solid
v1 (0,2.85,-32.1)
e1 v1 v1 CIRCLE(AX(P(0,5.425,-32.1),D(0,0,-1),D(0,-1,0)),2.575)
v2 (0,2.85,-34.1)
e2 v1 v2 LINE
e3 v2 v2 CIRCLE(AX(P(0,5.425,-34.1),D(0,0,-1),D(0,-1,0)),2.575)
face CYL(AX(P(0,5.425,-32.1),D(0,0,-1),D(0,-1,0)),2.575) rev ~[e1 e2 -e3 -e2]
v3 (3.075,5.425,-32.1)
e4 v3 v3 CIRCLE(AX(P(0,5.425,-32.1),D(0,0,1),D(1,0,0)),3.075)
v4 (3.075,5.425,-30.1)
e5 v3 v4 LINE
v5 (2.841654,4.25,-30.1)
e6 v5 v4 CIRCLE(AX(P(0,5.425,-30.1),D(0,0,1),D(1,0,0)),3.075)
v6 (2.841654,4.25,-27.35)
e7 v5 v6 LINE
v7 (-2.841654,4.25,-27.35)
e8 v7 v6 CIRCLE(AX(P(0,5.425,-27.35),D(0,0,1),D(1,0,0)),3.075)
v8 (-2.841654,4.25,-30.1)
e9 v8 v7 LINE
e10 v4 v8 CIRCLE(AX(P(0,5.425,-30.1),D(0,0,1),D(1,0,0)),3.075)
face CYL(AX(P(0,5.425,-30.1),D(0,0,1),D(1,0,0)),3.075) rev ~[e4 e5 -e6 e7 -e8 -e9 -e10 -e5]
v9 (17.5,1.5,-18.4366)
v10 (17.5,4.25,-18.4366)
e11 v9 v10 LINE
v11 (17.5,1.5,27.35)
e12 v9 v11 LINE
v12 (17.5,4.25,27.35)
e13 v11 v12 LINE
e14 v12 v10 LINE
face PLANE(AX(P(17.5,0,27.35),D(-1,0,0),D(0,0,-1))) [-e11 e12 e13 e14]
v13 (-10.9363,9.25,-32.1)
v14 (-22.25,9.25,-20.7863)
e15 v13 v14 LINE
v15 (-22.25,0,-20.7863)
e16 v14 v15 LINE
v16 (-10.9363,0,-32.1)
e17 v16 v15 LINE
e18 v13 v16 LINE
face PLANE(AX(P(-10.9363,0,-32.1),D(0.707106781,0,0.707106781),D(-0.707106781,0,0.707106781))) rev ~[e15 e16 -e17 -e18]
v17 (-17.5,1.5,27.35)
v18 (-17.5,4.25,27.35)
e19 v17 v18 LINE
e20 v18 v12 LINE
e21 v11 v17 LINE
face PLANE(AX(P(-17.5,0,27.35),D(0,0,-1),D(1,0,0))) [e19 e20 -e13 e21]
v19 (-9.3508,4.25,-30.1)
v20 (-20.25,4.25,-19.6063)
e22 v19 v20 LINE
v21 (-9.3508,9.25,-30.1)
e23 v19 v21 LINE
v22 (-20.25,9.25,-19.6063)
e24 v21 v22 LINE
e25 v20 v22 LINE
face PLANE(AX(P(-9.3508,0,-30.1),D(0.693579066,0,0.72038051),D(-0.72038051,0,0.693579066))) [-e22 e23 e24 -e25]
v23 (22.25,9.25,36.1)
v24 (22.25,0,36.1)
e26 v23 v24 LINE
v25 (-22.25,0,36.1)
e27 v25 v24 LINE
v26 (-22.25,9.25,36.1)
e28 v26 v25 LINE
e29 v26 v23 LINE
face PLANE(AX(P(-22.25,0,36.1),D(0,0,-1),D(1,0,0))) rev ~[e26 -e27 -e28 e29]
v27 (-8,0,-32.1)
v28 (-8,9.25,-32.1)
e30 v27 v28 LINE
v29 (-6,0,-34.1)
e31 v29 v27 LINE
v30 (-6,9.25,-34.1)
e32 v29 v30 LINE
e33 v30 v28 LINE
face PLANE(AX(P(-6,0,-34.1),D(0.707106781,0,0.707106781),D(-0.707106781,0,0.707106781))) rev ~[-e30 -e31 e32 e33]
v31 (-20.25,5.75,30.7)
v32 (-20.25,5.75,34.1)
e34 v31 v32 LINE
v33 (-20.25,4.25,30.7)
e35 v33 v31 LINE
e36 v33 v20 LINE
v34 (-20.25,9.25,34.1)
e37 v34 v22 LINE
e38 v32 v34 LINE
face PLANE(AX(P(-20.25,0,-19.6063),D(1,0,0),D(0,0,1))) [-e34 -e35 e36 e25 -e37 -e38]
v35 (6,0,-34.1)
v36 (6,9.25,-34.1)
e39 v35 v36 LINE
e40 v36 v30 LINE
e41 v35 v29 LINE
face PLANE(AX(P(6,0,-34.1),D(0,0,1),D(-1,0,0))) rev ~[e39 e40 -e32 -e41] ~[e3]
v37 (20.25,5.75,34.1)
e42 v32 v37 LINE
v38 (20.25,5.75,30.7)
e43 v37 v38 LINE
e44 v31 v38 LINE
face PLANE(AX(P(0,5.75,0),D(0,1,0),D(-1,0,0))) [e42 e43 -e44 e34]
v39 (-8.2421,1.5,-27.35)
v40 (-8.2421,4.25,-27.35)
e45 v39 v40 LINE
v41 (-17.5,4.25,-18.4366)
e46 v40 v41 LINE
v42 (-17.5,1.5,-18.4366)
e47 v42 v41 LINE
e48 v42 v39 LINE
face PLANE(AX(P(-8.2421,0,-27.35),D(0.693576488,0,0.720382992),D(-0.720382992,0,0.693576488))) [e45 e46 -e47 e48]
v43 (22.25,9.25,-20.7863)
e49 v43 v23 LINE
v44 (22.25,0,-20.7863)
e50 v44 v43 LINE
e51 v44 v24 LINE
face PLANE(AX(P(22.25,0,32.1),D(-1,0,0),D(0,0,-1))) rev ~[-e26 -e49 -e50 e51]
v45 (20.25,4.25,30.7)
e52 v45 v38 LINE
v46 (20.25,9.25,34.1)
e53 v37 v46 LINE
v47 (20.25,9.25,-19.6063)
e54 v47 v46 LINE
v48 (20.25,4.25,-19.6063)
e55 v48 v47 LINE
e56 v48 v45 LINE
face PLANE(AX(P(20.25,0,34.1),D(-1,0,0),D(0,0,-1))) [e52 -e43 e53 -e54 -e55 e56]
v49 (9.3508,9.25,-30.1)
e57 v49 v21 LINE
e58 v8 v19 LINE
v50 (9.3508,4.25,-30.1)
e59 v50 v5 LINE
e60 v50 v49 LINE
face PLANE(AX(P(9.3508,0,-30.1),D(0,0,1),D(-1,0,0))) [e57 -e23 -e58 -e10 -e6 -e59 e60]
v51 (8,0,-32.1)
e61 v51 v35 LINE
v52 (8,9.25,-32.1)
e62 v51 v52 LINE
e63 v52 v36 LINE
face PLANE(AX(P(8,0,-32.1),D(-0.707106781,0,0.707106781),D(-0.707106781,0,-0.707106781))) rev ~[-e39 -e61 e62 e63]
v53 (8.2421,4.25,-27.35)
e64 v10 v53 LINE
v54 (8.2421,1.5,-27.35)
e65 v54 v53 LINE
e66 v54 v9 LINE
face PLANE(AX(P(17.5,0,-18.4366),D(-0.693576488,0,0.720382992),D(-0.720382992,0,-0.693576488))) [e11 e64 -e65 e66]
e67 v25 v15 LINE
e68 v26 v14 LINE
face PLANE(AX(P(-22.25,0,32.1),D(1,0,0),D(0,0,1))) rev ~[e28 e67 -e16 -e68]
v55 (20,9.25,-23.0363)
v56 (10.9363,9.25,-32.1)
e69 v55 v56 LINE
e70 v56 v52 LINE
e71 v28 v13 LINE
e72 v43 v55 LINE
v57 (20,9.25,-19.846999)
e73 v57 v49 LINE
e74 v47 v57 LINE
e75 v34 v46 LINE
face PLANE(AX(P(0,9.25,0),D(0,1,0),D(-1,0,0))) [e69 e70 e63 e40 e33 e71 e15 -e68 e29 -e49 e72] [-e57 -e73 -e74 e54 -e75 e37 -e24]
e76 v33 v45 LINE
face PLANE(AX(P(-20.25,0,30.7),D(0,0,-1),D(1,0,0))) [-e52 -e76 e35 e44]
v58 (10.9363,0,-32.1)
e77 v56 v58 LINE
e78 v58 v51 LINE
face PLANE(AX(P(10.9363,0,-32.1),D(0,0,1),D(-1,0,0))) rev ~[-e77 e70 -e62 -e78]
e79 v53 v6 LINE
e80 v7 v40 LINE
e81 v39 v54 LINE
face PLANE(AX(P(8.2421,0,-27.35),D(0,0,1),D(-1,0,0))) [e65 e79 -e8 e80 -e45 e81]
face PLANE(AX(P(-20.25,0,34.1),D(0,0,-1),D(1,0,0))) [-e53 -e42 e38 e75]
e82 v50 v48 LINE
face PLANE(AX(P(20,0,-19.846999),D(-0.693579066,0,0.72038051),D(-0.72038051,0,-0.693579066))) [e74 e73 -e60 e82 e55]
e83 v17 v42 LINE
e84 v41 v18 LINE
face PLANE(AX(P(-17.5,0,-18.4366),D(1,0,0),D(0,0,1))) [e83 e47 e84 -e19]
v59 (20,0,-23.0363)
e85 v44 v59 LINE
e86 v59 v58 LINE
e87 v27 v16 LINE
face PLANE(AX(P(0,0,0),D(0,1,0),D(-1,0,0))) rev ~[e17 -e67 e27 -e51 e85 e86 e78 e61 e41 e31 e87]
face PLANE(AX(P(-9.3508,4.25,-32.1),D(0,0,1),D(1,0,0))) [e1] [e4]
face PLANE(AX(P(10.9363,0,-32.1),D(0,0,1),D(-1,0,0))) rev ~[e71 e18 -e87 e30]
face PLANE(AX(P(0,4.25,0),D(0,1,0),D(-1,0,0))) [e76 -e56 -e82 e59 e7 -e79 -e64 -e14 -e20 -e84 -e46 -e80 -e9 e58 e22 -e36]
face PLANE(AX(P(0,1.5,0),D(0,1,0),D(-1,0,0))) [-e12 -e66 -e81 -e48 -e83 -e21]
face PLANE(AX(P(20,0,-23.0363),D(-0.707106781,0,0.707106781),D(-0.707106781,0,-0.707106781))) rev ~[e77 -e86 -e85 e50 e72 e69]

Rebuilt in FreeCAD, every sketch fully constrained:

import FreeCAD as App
import Part
import Sketcher

V = App.Vector
Q = App.Units.Quantity


def add_polygon(sketch, points):
    """Adds a closed chain of lines whose ends are joined by coincident constraints."""
    first, n = sketch.GeometryCount, len(points)
    for a, b in zip(points, points[1:] + points[:1]):
        sketch.addGeometry(Part.LineSegment(App.Vector(*a, 0), App.Vector(*b, 0)), False)
    for i in range(n):
        sketch.addConstraint(Sketcher.Constraint("Coincident", first + i, 2, first + (i + 1) % n, 1))

doc = App.newDocument("Part")
body = doc.addObject("PartDesign::Body", "Body")

# Sketch on XZ plane
sketch1 = doc.addObject("Sketcher::SketchObject", "Sketch")
body.addObject(sketch1)
sketch1.AttachmentSupport = (doc.XZ_Plane, [""])
sketch1.MapMode = "FlatFace"
add_polygon(sketch1, [(22.25, -20.7863), (20, -23.0363), (10.9363, -32.1), (-10.9363, -32.1), (-22.25, -20.7863), (-22.25, 36.1), (22.25, 36.1)])  # lines 0-6
sketch1.addConstraint(Sketcher.Constraint("Horizontal", 2))
sketch1.addConstraint(Sketcher.Constraint("Vertical", 4))
sketch1.addConstraint(Sketcher.Constraint("Horizontal", 5))
sketch1.addConstraint(Sketcher.Constraint("Vertical", 6))
sketch1.addConstraint(Sketcher.Constraint("Symmetric", 3, 2, 6, 2, -2))
sketch1.addConstraint(Sketcher.Constraint("Parallel", 0, 1))
sketch1.addConstraint(Sketcher.Constraint("Perpendicular", 1, 3))
sketch1.addConstraint(Sketcher.Constraint("Angle", 0, Q("-135 deg")))
sketch1.addConstraint(Sketcher.Constraint("Distance", 3, 16.0))
sketch1.addConstraint(Sketcher.Constraint("DistanceX", 5, 1, 5, 2, 44.5))
sketch1.addConstraint(Sketcher.Constraint("DistanceX", -1, 1, 0, 2, 20.0))
sketch1.addConstraint(Sketcher.Constraint("DistanceY", 1, 2, -1, 1, 32.1))
sketch1.addConstraint(Sketcher.Constraint("DistanceY", -1, 1, 4, 2, 36.1))
pad1 = doc.addObject("PartDesign::Pad", "Pad")
body.addObject(pad1)
pad1.Profile = sketch1
pad1.Length = 1.5
pad1.Reversed = True

# Sketch on XZ plane
sketch2 = doc.addObject("Sketcher::SketchObject", "Sketch001")
body.addObject(sketch2)
sketch2.AttachmentSupport = (doc.XZ_Plane, [""])
sketch2.MapMode = "FlatFace"
add_polygon(sketch2, [(20.25, -19.6063), (9.3508, -30.1), (-9.3508, -30.1), (-20.25, -19.6063), (-20.25, 30.7), (20.25, 30.7)])  # lines 0-5
add_polygon(sketch2, [(-17.5, 27.35), (-17.5, -18.4366), (-8.2421, -27.35), (8.2421, -27.35), (17.5, -18.4366), (17.5, 27.35)])  # lines 6-11
sketch2.addConstraint(Sketcher.Constraint("Horizontal", 1))
sketch2.addConstraint(Sketcher.Constraint("Vertical", 3))
sketch2.addConstraint(Sketcher.Constraint("Horizontal", 4))
sketch2.addConstraint(Sketcher.Constraint("Vertical", 5))
sketch2.addConstraint(Sketcher.Constraint("Vertical", 6))
sketch2.addConstraint(Sketcher.Constraint("Horizontal", 8))
sketch2.addConstraint(Sketcher.Constraint("Vertical", 10))
sketch2.addConstraint(Sketcher.Constraint("Horizontal", 11))
sketch2.addConstraint(Sketcher.Constraint("Symmetric", 2, 2, 5, 2, -2))
sketch2.addConstraint(Sketcher.Constraint("Symmetric", 6, 2, 9, 2, -2))
sketch2.addConstraint(Sketcher.Constraint("Parallel", 2, 7))
sketch2.addConstraint(Sketcher.Constraint("Parallel", 0, 9))
sketch2.addConstraint(Sketcher.Constraint("Equal", 0, 2))
sketch2.addConstraint(Sketcher.Constraint("DistanceX", 11, 2, 11, 1, 35.0))
sketch2.addConstraint(Sketcher.Constraint("DistanceX", 4, 1, 4, 2, 40.5))
sketch2.addConstraint(Sketcher.Constraint("DistanceY", 0, 2, -1, 1, 30.1))
sketch2.addConstraint(Sketcher.Constraint("DistanceY", -1, 1, 3, 2, 30.7))
sketch2.addConstraint(Sketcher.Constraint("DistanceY", 8, 2, 10, 2, 54.7))
sketch2.addConstraint(Sketcher.Constraint("DistanceY", 7, 2, -1, 1, 27.35))
sketch2.addConstraint(Sketcher.Constraint("DistanceX", 1, 2, 1, 1, 18.7016))
sketch2.addConstraint(Sketcher.Constraint("DistanceX", 8, 1, 8, 2, 16.4842))
sketch2.addConstraint(Sketcher.Constraint("DistanceY", 3, 1, 3, 2, 50.3063))
pad2 = doc.addObject("PartDesign::Pad", "Pad001")
body.addObject(pad2)
pad2.Profile = sketch2
pad2.Length = 4.25
pad2.Reversed = True

# Sketch on XZ plane
sketch3 = doc.addObject("Sketcher::SketchObject", "Sketch002")
body.addObject(sketch3)
sketch3.AttachmentSupport = (doc.XZ_Plane, [""])
sketch3.MapMode = "FlatFace"
add_polygon(sketch3, [(20.25, 34.1), (20.25, 30.7), (-20.25, 30.7), (-20.25, 34.1)])  # lines 0-3
sketch3.addConstraint(Sketcher.Constraint("Vertical", 0))
sketch3.addConstraint(Sketcher.Constraint("Horizontal", 1))
sketch3.addConstraint(Sketcher.Constraint("Vertical", 2))
sketch3.addConstraint(Sketcher.Constraint("Horizontal", 3))
sketch3.addConstraint(Sketcher.Constraint("DistanceX", 1, 2, 1, 1, 40.5))
sketch3.addConstraint(Sketcher.Constraint("DistanceY", 0, 2, 0, 1, 3.4))
sketch3.addConstraint(Sketcher.Constraint("DistanceY", -1, 1, 0, 2, 30.7))
sketch3.addConstraint(Sketcher.Constraint("DistanceX", -1, 1, 0, 2, 20.25))
pad3 = doc.addObject("PartDesign::Pad", "Pad002")
body.addObject(pad3)
pad3.Profile = sketch3
pad3.Length = 5.75
pad3.Reversed = True

# Sketch on XZ plane
sketch4 = doc.addObject("Sketcher::SketchObject", "Sketch003")
body.addObject(sketch4)
sketch4.AttachmentSupport = (doc.XZ_Plane, [""])
sketch4.MapMode = "FlatFace"
add_polygon(sketch4, [(22.25, -20.7863), (20, -23.0363), (10.9363, -32.1), (-10.9363, -32.1), (-22.25, -20.7863), (-22.25, 36.1), (22.25, 36.1)])  # lines 0-6
add_polygon(sketch4, [(9.3508, -30.1), (20, -19.846999), (20.25, -19.6063), (20.25, 34.1), (-20.25, 34.1), (-20.25, -19.6063), (-9.3508, -30.1)])  # lines 7-13
sketch4.addConstraint(Sketcher.Constraint("Horizontal", 2))
sketch4.addConstraint(Sketcher.Constraint("Vertical", 4))
sketch4.addConstraint(Sketcher.Constraint("Horizontal", 5))
sketch4.addConstraint(Sketcher.Constraint("Vertical", 6))
sketch4.addConstraint(Sketcher.Constraint("Vertical", 9))
sketch4.addConstraint(Sketcher.Constraint("Horizontal", 10))
sketch4.addConstraint(Sketcher.Constraint("Vertical", 11))
sketch4.addConstraint(Sketcher.Constraint("Horizontal", 13))
sketch4.addConstraint(Sketcher.Constraint("Distance", 3, 16.0))
sketch4.addConstraint(Sketcher.Constraint("DistanceX", 8, 2, 6, 2, 2.0))
sketch4.addConstraint(Sketcher.Constraint("DistanceY", 9, 2, 5, 2, 2.0))
sketch4.addConstraint(Sketcher.Constraint("DistanceX", 4, 2, 10, 2, 2.0))
sketch4.addConstraint(Sketcher.Constraint("DistanceY", 2, 2, 12, 2, 2.0))
sketch4.addConstraint(Sketcher.Constraint("DistanceX", 7, 2, 8, 2, 0.25))
sketch4.addConstraint(Sketcher.Constraint("DistanceX", 0, 2, 8, 2, 0.25))
sketch4.addConstraint(Sketcher.Constraint("DistanceX", 5, 1, 5, 2, 44.5))
sketch4.addConstraint(Sketcher.Constraint("DistanceX", -1, 1, 0, 2, 20.0))
sketch4.addConstraint(Sketcher.Constraint("DistanceY", 1, 2, -1, 1, 32.1))
sketch4.addConstraint(Sketcher.Constraint("DistanceY", -1, 1, 4, 2, 36.1))
sketch4.addConstraint(Sketcher.Constraint("DistanceY", 0, 2, 3, 2, 2.25))
sketch4.addConstraint(Sketcher.Constraint("DistanceY", 0, 2, 6, 2, 2.25))
sketch4.addConstraint(Sketcher.Constraint("DistanceY", 6, 2, 8, 2, 1.18))
sketch4.addConstraint(Sketcher.Constraint("DistanceY", 3, 2, 11, 2, 1.18))
sketch4.addConstraint(Sketcher.Constraint("Distance", 1, 12.818))
sketch4.addConstraint(Sketcher.Constraint("Distance", 8, 0.347))
sketch4.addConstraint(Sketcher.Constraint("DistanceX", 2, 2, 2, 1, 21.8726))
sketch4.addConstraint(Sketcher.Constraint("DistanceX", 13, 1, 13, 2, 18.7016))
sketch4.addConstraint(Sketcher.Constraint("DistanceX", 12, 2, 1, 2, 20.287))
pad4 = doc.addObject("PartDesign::Pad", "Pad003")
body.addObject(pad4)
pad4.Profile = sketch4
pad4.Length = 9.25
pad4.Reversed = True

# Sketch on XZ plane
sketch5 = doc.addObject("Sketcher::SketchObject", "Sketch004")
body.addObject(sketch5)
sketch5.AttachmentSupport = (doc.XZ_Plane, [""])
sketch5.MapMode = "FlatFace"
add_polygon(sketch5, [(6, -34.1), (8, -32.1), (-8, -32.1), (-6, -34.1)])  # lines 0-3
sketch5.addConstraint(Sketcher.Constraint("Horizontal", 1))
sketch5.addConstraint(Sketcher.Constraint("Horizontal", 3))
sketch5.addConstraint(Sketcher.Constraint("Perpendicular", 0, 2))
sketch5.addConstraint(Sketcher.Constraint("Equal", 0, 2))
sketch5.addConstraint(Sketcher.Constraint("DistanceX", 3, 1, 3, 2, 12.0))
sketch5.addConstraint(Sketcher.Constraint("DistanceX", 1, 2, 2, 2, 2.0))
sketch5.addConstraint(Sketcher.Constraint("DistanceX", -1, 1, 0, 2, 8.0))
sketch5.addConstraint(Sketcher.Constraint("DistanceY", 0, 2, -1, 1, 32.1))
pad5 = doc.addObject("PartDesign::Pad", "Pad004")
body.addObject(pad5)
pad5.Profile = sketch5
pad5.Length = 9.25
pad5.Reversed = True

# Sketch on XY plane
sketch6 = doc.addObject("Sketcher::SketchObject", "Sketch005")
body.addObject(sketch6)
sketch6.AttachmentSupport = (doc.XY_Plane, [""])
sketch6.MapMode = "FlatFace"
sketch6.AttachmentOffset = App.Placement(V(0, 0, -30.1), App.Rotation())
sketch6.addGeometry(Part.Circle(V(0, 5.425, 0), V(0, 0, 1), 3.075), False)
sketch6.addConstraint(Sketcher.Constraint("PointOnObject", 0, 3, -2))
sketch6.addConstraint(Sketcher.Constraint("Diameter", 0, 6.15))
sketch6.addConstraint(Sketcher.Constraint("DistanceY", -1, 1, 0, 3, 5.425))
pocket1 = doc.addObject("PartDesign::Pocket", "Pocket")
body.addObject(pocket1)
pocket1.Profile = sketch6
pocket1.Type = "TwoLengths"
pocket1.Length = 7
pocket1.Length2 = 2
pocket1.Reversed = True

# Sketch on XY plane
sketch7 = doc.addObject("Sketcher::SketchObject", "Sketch006")
body.addObject(sketch7)
sketch7.AttachmentSupport = (doc.XY_Plane, [""])
sketch7.MapMode = "FlatFace"
sketch7.AttachmentOffset = App.Placement(V(0, 0, -32.1), App.Rotation())
sketch7.addGeometry(Part.Circle(V(0, 5.425, 0), V(0, 0, 1), 2.575), False)
sketch7.addConstraint(Sketcher.Constraint("PointOnObject", 0, 3, -2))
sketch7.addConstraint(Sketcher.Constraint("Diameter", 0, 5.15))
sketch7.addConstraint(Sketcher.Constraint("DistanceY", -1, 1, 0, 3, 5.425))
doc.recompute()
hole = doc.addObject("PartDesign::Hole", "Hole")
body.addObject(hole)
hole.Profile = sketch7
hole.ThreadType = "None"
hole.Diameter = 5.15
hole.DepthType = "ThroughAll"

doc.recompute()
